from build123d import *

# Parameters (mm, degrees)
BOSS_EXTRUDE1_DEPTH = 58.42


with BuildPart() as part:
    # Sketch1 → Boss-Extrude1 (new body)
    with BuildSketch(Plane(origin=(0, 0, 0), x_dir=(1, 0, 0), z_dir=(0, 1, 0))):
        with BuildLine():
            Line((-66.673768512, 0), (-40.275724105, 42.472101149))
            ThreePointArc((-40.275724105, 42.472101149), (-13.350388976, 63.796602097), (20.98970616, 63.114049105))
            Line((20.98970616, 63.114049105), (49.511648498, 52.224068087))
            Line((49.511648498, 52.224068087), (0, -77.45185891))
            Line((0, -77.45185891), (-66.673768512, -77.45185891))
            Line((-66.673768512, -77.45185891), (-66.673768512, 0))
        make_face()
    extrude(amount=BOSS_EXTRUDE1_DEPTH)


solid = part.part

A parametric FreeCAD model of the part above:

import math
import FreeCAD as App
import Part
import Sketcher

V = App.Vector
Q = App.Units.Quantity

doc = App.newDocument("Part")
params = doc.addObject("Spreadsheet::Sheet", "Params")
for row, (alias, value) in enumerate([
    ("sketch1_radius", "2 in"),
    ("pad1_length", "2.3 in"),
], start=1):
    params.set(f"A{row}", alias)
    params.set(f"B{row}", "=" + value)
    params.setAlias(f"B{row}", alias)

body = doc.addObject("PartDesign::Body", "Body")

# Sketch on XZ plane
sketch1 = body.newObject("Sketcher::SketchObject", "Sketch")
sketch1.AttachmentSupport = (doc.getObject("XZ_Plane"), [""])
sketch1.MapMode = "FlatFace"
sketch1.addGeometry(Part.LineSegment(V(-40.275724, -42.472101, 0), V(-66.673769, 0, 0)), False)
sketch1.addGeometry(Part.LineSegment(V(-66.673769, 0, 0), V(-66.673769, 77.451859, 0)), False)
sketch1.addGeometry(Part.LineSegment(V(-66.673769, 77.451859, 0), V(0, 77.451859, 0)), False)
sketch1.addGeometry(Part.LineSegment(V(0, 77.451859, 0), V(49.511648, -52.224068, 0)), False)
sketch1.addGeometry(Part.LineSegment(V(49.511648, -52.224068, 0), V(20.989706, -63.114049, 0)), False)
sketch1.addGeometry(Part.ArcOfCircle(Part.Circle(V(2.869579, -15.655636, 0), V(0, 0, 1), 50.8), math.radians(-148.137459), math.radians(-69.102612)), False)
sketch1.addConstraint(Sketcher.Constraint("Coincident", 0, 2, 1, 1))
sketch1.addConstraint(Sketcher.Constraint("Coincident", 1, 2, 2, 1))
sketch1.addConstraint(Sketcher.Constraint("Coincident", 2, 2, 3, 1))
sketch1.addConstraint(Sketcher.Constraint("Coincident", 3, 2, 4, 1))
sketch1.addConstraint(Sketcher.Constraint("Tangent", 4, 2, 5, 2))
sketch1.addConstraint(Sketcher.Constraint("Tangent", 5, 1, 0, 1))
sketch1.addConstraint(Sketcher.Constraint("Vertical", 1))
sketch1.addConstraint(Sketcher.Constraint("Horizontal", 2))
sketch1.addConstraint(Sketcher.Constraint("PointOnObject", 0, 2, -1))
sketch1.addConstraint(Sketcher.Constraint("PointOnObject", 2, 2, -2))
sketch1.addConstraint(Sketcher.Constraint("Perpendicular", 3, 4))
sketch1.addConstraint(Sketcher.Constraint("Radius", 5, Q("2 in")))
sketch1.addConstraint(Sketcher.Constraint("DistanceX", 2, 1, 2, 2, Q("66.673769 mm")))
sketch1.addConstraint(Sketcher.Constraint("DistanceY", 1, 1, 1, 2, Q("77.451859 mm")))
sketch1.addConstraint(Sketcher.Constraint("DistanceY", 5, 1, -1, 1, Q("42.472101 mm")))
sketch1.addConstraint(Sketcher.Constraint("Distance", 0, Q("50.007361 mm")))
sketch1.addConstraint(Sketcher.Constraint("DistanceX", -1, 1, 3, 2, Q("49.511648 mm")))
sketch1.setExpression("Constraints[11]", "Params.sketch1_radius")
pad1 = body.newObject("PartDesign::Pad", "Pad")
pad1.Profile = sketch1
pad1.setExpression("Length", "Params.pad1_length")
pad1.Reversed = True

doc.recompute()
